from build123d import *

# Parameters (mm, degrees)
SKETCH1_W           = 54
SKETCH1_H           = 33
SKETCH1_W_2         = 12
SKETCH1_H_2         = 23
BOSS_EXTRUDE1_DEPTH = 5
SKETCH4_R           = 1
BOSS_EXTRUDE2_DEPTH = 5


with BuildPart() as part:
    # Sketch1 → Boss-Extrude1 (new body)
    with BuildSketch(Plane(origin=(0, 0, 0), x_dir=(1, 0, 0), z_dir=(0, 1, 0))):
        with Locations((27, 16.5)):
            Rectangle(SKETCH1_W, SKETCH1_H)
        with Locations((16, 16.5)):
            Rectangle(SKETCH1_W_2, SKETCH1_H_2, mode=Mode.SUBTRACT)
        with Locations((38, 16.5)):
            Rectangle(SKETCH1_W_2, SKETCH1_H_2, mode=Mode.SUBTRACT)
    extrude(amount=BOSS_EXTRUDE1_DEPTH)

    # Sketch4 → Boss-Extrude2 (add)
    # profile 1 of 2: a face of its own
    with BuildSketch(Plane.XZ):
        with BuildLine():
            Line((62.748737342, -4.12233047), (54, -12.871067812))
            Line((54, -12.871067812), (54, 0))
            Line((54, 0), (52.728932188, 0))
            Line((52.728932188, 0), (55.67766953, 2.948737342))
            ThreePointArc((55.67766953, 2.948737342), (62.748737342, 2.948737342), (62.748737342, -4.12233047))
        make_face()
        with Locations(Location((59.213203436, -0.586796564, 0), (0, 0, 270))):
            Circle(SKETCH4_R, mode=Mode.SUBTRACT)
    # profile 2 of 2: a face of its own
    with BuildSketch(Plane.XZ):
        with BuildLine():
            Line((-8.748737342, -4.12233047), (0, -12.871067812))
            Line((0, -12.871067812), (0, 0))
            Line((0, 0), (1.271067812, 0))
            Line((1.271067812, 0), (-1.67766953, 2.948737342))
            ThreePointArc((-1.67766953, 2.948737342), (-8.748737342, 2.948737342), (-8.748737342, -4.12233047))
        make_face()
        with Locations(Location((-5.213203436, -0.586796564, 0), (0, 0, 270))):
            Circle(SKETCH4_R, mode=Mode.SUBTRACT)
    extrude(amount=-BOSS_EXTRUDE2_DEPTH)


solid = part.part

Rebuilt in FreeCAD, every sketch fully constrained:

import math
import FreeCAD as App
import Part
import Sketcher

V = App.Vector
Q = App.Units.Quantity


def add_polygon(sketch, points):
    """Adds a closed chain of lines whose ends are joined by coincident constraints."""
    first, n = sketch.GeometryCount, len(points)
    for a, b in zip(points, points[1:] + points[:1]):
        sketch.addGeometry(Part.LineSegment(App.Vector(*a, 0), App.Vector(*b, 0)), False)
    for i in range(n):
        sketch.addConstraint(Sketcher.Constraint("Coincident", first + i, 2, first + (i + 1) % n, 1))

doc = App.newDocument("Part")
body = doc.addObject("PartDesign::Body", "Body")

# Sketch on XZ plane
sketch1 = doc.addObject("Sketcher::SketchObject", "Sketch")
body.addObject(sketch1)
sketch1.AttachmentSupport = (doc.XZ_Plane, [""])
sketch1.MapMode = "FlatFace"
add_polygon(sketch1, [(0, -33), (0, 0), (54, 0), (54, -33)])  # lines 0-3
add_polygon(sketch1, [(22, -5), (10, -5), (10, -28), (22, -28)])  # lines 4-7
add_polygon(sketch1, [(44, -5), (32, -5), (32, -28), (44, -28)])  # lines 8-11
sketch1.addConstraint([
    Sketcher.Constraint("Vertical", 0),
    Sketcher.Constraint("Horizontal", 1),
    Sketcher.Constraint("Vertical", 2),
    Sketcher.Constraint("Horizontal", 3),
    Sketcher.Constraint("Horizontal", 4),
    Sketcher.Constraint("Vertical", 5),
    Sketcher.Constraint("Horizontal", 6),
    Sketcher.Constraint("Vertical", 7),
    Sketcher.Constraint("Horizontal", 8),
    Sketcher.Constraint("Vertical", 9),
    Sketcher.Constraint("Horizontal", 10),
    Sketcher.Constraint("Vertical", 11),
    Sketcher.Constraint("Coincident", 0, 2, -1, 1),
    Sketcher.Constraint("Horizontal", 7, 2, 8, 2),
    Sketcher.Constraint("Horizontal", 6, 2, 9, 2),
    Sketcher.Constraint("Equal", 6, 8),
    Sketcher.Constraint("DistanceX", 1, 1, 1, 2, Q("54 mm")),
    Sketcher.Constraint("DistanceX", 4, 2, 4, 1, Q("12 mm")),
    Sketcher.Constraint("DistanceY", 0, 1, 0, 2, Q("33 mm")),
    Sketcher.Constraint("DistanceY", 5, 2, 5, 1, Q("23 mm")),
    Sketcher.Constraint("DistanceX", -1, 1, 4, 2, Q("10 mm")),
    Sketcher.Constraint("DistanceY", 4, 2, -1, 1, Q("5 mm")),
    Sketcher.Constraint("DistanceX", -1, 1, 8, 2, Q("32 mm")),
])
pad1 = doc.addObject("PartDesign::Pad", "Pad")
body.addObject(pad1)
pad1.Profile = sketch1
pad1.Length = 5
pad1.Reversed = True

# Sketch on XZ plane
sketch2 = doc.addObject("Sketcher::SketchObject", "Sketch001")
body.addObject(sketch2)
sketch2.AttachmentSupport = (doc.XZ_Plane, [""])
sketch2.MapMode = "FlatFace"
sketch2.addGeometry([
    Part.LineSegment(V(54, -12.871068, 0), V(62.748737, -4.12233, 0)),  # 0
    Part.ArcOfCircle(Part.Circle(V(59.213203, -0.586797, 0), V(0, 0, 1), 5), math.radians(-45), math.radians(135)),  # 1
    Part.LineSegment(V(55.67767, 2.948737, 0), V(52.728932, 0, 0)),  # 2
    Part.LineSegment(V(52.728932, 0, 0), V(54, 0, 0)),  # 3
    Part.LineSegment(V(54, 0, 0), V(54, -12.871068, 0)),  # 4
    Part.Circle(V(59.213203, -0.586797, 0), V(0, 0, 1), 1),  # 5
    Part.LineSegment(V(-8.748737, -4.12233, 0), V(0, -12.871068, 0)),  # 6
    Part.LineSegment(V(0, -12.871068, 0), V(0, 0, 0)),  # 7
    Part.LineSegment(V(0, 0, 0), V(1.271068, 0, 0)),  # 8
    Part.LineSegment(V(1.271068, 0, 0), V(-1.67767, 2.948737, 0)),  # 9
    Part.ArcOfCircle(Part.Circle(V(-5.213203, -0.586797, 0), V(0, 0, 1), 5), math.radians(45), math.radians(225)),  # 10
    Part.Circle(V(-5.213203, -0.586797, 0), V(0, 0, 1), 1),  # 11
], False)
sketch2.addConstraint([
    Sketcher.Constraint("Tangent", 0, 2, 1, 1),
    Sketcher.Constraint("Tangent", 1, 2, 2, 1),
    Sketcher.Constraint("Coincident", 2, 2, 3, 1),
    Sketcher.Constraint("Coincident", 3, 2, 4, 1),
    Sketcher.Constraint("Coincident", 4, 2, 0, 1),
    Sketcher.Constraint("Coincident", 6, 2, 7, 1),
    Sketcher.Constraint("Coincident", 7, 2, 8, 1),
    Sketcher.Constraint("Coincident", 8, 2, 9, 1),
    Sketcher.Constraint("Tangent", 9, 2, 10, 1),
    Sketcher.Constraint("Tangent", 10, 2, 6, 1),
    Sketcher.Constraint("Horizontal", 3),
    Sketcher.Constraint("Vertical", 4),
    Sketcher.Constraint("Vertical", 7),
    Sketcher.Constraint("Horizontal", 8),
    Sketcher.Constraint("Coincident", 7, 2, -1, 1),
    Sketcher.Constraint("Coincident", 5, 3, 1, 3),
    Sketcher.Constraint("Coincident", 11, 3, 10, 3),
    Sketcher.Constraint("Equal", 1, 10),
    Sketcher.Constraint("Equal", 5, 11),
    Sketcher.Constraint("PointOnObject", 2, 2, -1),
    Sketcher.Constraint("Parallel", 0, 2),
    Sketcher.Constraint("Perpendicular", 2, 6),
    Sketcher.Constraint("Parallel", 6, 9),
    Sketcher.Constraint("Horizontal", 5, 3, 10, 3),
    Sketcher.Constraint("Horizontal", 4, 2, 6, 2),
    Sketcher.Constraint("Horizontal", 1, 2, 9, 2),
    Sketcher.Constraint("Diameter", 5, Q("2 mm")),
    Sketcher.Constraint("Radius", 1, Q("5 mm")),
    Sketcher.Constraint("DistanceX", -1, 1, 3, 2, Q("54 mm")),
    Sketcher.Constraint("DistanceX", 3, 1, 3, 2, Q("1.271068 mm")),
    Sketcher.Constraint("DistanceY", 0, 2, -1, 1, Q("4.12233 mm")),
])
pad2 = doc.addObject("PartDesign::Pad", "Pad001")
body.addObject(pad2)
pad2.Profile = sketch2
pad2.Length = 5
pad2.Reversed = True

doc.recompute()
